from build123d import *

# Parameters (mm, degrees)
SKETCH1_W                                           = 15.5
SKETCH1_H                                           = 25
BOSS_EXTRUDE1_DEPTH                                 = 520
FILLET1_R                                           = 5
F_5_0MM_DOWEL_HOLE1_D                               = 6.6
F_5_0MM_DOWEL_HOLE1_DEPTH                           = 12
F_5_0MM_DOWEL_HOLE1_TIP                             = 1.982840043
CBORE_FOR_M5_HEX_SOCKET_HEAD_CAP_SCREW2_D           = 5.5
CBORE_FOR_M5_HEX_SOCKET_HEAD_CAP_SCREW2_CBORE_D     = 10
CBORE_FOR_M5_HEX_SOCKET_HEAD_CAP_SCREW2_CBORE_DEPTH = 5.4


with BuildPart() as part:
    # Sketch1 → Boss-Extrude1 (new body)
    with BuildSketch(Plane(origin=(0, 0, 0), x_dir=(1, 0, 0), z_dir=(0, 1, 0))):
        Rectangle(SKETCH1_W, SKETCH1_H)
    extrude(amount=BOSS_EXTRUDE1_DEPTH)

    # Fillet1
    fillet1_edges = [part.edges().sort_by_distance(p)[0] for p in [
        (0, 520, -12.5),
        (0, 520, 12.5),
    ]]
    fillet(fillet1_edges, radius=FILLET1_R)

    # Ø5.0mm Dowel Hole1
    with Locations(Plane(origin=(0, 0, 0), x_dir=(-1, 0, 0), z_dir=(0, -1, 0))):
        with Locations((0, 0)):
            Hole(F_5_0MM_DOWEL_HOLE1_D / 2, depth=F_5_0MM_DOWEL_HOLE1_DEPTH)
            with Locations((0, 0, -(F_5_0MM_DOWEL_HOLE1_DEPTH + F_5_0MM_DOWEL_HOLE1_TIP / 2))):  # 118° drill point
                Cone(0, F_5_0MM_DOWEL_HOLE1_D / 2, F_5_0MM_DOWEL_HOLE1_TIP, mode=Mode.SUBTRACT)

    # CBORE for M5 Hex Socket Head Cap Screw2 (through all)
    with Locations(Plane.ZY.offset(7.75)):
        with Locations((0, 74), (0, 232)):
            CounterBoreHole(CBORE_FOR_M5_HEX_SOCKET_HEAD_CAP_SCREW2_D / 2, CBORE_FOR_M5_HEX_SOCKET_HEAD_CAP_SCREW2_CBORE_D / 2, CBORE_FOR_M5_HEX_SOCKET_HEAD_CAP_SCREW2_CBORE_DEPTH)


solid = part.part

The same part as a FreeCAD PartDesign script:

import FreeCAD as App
import Part
import Sketcher
from FreeCAD import Vector


def edges_at(feature, points):
    """Names of the edges that pass closest to the given points."""
    edges = feature.Shape.Edges
    near = lambda p: min(range(len(edges)), key=lambda i: edges[i].distToShape(Part.Vertex(*p))[0])
    return sorted({f"Edge{near(p) + 1}" for p in points})

doc = App.newDocument("Part")
body = doc.addObject("PartDesign::Body", "Body")

# Sketch on XZ plane
sketch1 = body.newObject("Sketcher::SketchObject", "Sketch")
sketch1.AttachmentSupport = (doc.getObject("XZ_Plane"), [""])
sketch1.MapMode = "FlatFace"
sketch1.addGeometry(Part.LineSegment(Vector(-8, -12, 0), Vector(-8, 12, 0)), False)
sketch1.addGeometry(Part.LineSegment(Vector(-8, 12, 0), Vector(8, 12, 0)), False)
sketch1.addGeometry(Part.LineSegment(Vector(8, 12, 0), Vector(8, -12, 0)), False)
sketch1.addGeometry(Part.LineSegment(Vector(8, -12, 0), Vector(-8, -12, 0)), False)
sketch1.addConstraint(Sketcher.Constraint("Coincident", 0, 2, 1, 1))
sketch1.addConstraint(Sketcher.Constraint("Coincident", 1, 2, 2, 1))
sketch1.addConstraint(Sketcher.Constraint("Coincident", 2, 2, 3, 1))
sketch1.addConstraint(Sketcher.Constraint("Coincident", 3, 2, 0, 1))
sketch1.addConstraint(Sketcher.Constraint("Vertical", 0))
sketch1.addConstraint(Sketcher.Constraint("Horizontal", 1))
sketch1.addConstraint(Sketcher.Constraint("Vertical", 2))
sketch1.addConstraint(Sketcher.Constraint("Horizontal", 3))
sketch1.addConstraint(Sketcher.Constraint("Symmetric", 0, 2, 2, 2, -1, 1))
sketch1.addConstraint(Sketcher.Constraint("DistanceY", 0, 1, 0, 2, 25.0))
sketch1.addConstraint(Sketcher.Constraint("DistanceX", 1, 1, 1, 2, 15.5))
pad1 = body.newObject("PartDesign::Pad", "Pad")
pad1.Profile = sketch1
pad1.Length = 520
pad1.Reversed = True
doc.recompute()

fillet = body.newObject("PartDesign::Fillet", "Fillet")
fillet.Base = (pad1, edges_at(pad1, [(0, 520, -12.5), (0, 520, 12.5)]))
fillet.Radius = 5

# Sketch on XZ plane
sketch2 = body.newObject("Sketcher::SketchObject", "Sketch001")
sketch2.AttachmentSupport = (doc.getObject("XZ_Plane"), [""])
sketch2.MapMode = "FlatFace"
sketch2.addGeometry(Part.Circle(Vector(0, 0, 0), Vector(0, 0, 1), 3.3), False)
sketch2.addConstraint(Sketcher.Constraint("Coincident", 0, 3, -1, 1))
sketch2.addConstraint(Sketcher.Constraint("Diameter", 0, 6.6))
doc.recompute()
hole = body.newObject("PartDesign::Hole", "Hole")
hole.Profile = sketch2
hole.ThreadType = "None"
hole.Diameter = 6.6
hole.DepthType = "Dimension"
hole.Depth = 12
hole.DrillPoint = "Angled"
hole.DrillPointAngle = 118

# Sketch on YZ plane
sketch3 = body.newObject("Sketcher::SketchObject", "Sketch002")
sketch3.AttachmentSupport = (doc.getObject("YZ_Plane"), [""])
sketch3.MapMode = "FlatFace"
sketch3.AttachmentOffset = App.Placement(Vector(0, 0, -7.75), App.Rotation())
sketch3.addGeometry(Part.Circle(Vector(74, 0, 0), Vector(0, 0, 1), 2.8), False)
sketch3.addGeometry(Part.Circle(Vector(232, 0, 0), Vector(0, 0, 1), 2.8), False)
sketch3.addConstraint(Sketcher.Constraint("Equal", 0, 1))
sketch3.addConstraint(Sketcher.Constraint("PointOnObject", 0, 3, -1))
sketch3.addConstraint(Sketcher.Constraint("PointOnObject", 1, 3, -1))
sketch3.addConstraint(Sketcher.Constraint("Diameter", 0, 5.5))
sketch3.addConstraint(Sketcher.Constraint("DistanceX", -1, 1, 0, 3, 74.0))
sketch3.addConstraint(Sketcher.Constraint("DistanceX", -1, 1, 1, 3, 232.0))
doc.recompute()
hole2 = body.newObject("PartDesign::Hole", "Hole001")
hole2.Profile = sketch3
hole2.ThreadType = "None"
hole2.Diameter = 5.5
hole2.DepthType = "ThroughAll"
hole2.HoleCutType = "Counterbore"
hole2.HoleCutDiameter = 10
hole2.HoleCutDepth = 5.4
hole2.Reversed = True

doc.recompute()
